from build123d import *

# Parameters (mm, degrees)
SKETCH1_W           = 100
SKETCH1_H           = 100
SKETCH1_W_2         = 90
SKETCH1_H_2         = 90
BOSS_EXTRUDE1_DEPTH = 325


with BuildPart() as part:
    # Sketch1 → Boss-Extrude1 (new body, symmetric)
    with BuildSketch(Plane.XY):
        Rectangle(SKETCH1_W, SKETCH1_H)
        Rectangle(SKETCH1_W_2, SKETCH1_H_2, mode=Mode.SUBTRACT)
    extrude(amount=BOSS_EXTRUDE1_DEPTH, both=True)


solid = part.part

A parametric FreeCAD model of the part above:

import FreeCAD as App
import Part
import Sketcher
from FreeCAD import Vector
Q = App.Units.Quantity

doc = App.newDocument("Part")
body = doc.addObject("PartDesign::Body", "Body")

# Sketch on XY plane
sketch1 = doc.addObject("Sketcher::SketchObject", "Sketch")
body.addObject(sketch1)
sketch1.AttachmentSupport = (doc.XY_Plane, [""])
sketch1.MapMode = "FlatFace"
sketch1.addGeometry([
    Part.LineSegment(Vector(-50, 50, 0), Vector(-50, -50, 0)),  # 0
    Part.LineSegment(Vector(-50, -50, 0), Vector(50, -50, 0)),  # 1
    Part.LineSegment(Vector(50, -50, 0), Vector(50, 50, 0)),  # 2
    Part.LineSegment(Vector(50, 50, 0), Vector(-50, 50, 0)),  # 3
    Part.LineSegment(Vector(45, -45, 0), Vector(-45, -45, 0)),  # 4
    Part.LineSegment(Vector(-45, -45, 0), Vector(-45, 45, 0)),  # 5
    Part.LineSegment(Vector(-45, 45, 0), Vector(45, 45, 0)),  # 6
    Part.LineSegment(Vector(45, 45, 0), Vector(45, -45, 0)),  # 7
], False)
sketch1.addConstraint([
    Sketcher.Constraint("Coincident", 0, 2, 1, 1),
    Sketcher.Constraint("Coincident", 1, 2, 2, 1),
    Sketcher.Constraint("Coincident", 2, 2, 3, 1),
    Sketcher.Constraint("Coincident", 3, 2, 0, 1),
    Sketcher.Constraint("Coincident", 4, 2, 5, 1),
    Sketcher.Constraint("Coincident", 5, 2, 6, 1),
    Sketcher.Constraint("Coincident", 6, 2, 7, 1),
    Sketcher.Constraint("Coincident", 7, 2, 4, 1),
    Sketcher.Constraint("Vertical", 0),
    Sketcher.Constraint("Horizontal", 1),
    Sketcher.Constraint("Vertical", 2),
    Sketcher.Constraint("Horizontal", 3),
    Sketcher.Constraint("Horizontal", 4),
    Sketcher.Constraint("Vertical", 5),
    Sketcher.Constraint("Horizontal", 6),
    Sketcher.Constraint("Vertical", 7),
    Sketcher.Constraint("Symmetric", 0, 2, 2, 2, -1, 1),
    Sketcher.Constraint("Symmetric", 4, 2, 6, 2, -1, 1),
    Sketcher.Constraint("Equal", 3, 0),
    Sketcher.Constraint("Equal", 6, 5),
    Sketcher.Constraint("DistanceX", 1, 1, 1, 2, Q("100 mm")),
    Sketcher.Constraint("DistanceX", 4, 2, 4, 1, Q("90 mm")),
])
pad1 = doc.addObject("PartDesign::Pad", "Pad")
body.addObject(pad1)
pad1.Profile = sketch1
pad1.Length = 650
pad1.Midplane = True

doc.recompute()
